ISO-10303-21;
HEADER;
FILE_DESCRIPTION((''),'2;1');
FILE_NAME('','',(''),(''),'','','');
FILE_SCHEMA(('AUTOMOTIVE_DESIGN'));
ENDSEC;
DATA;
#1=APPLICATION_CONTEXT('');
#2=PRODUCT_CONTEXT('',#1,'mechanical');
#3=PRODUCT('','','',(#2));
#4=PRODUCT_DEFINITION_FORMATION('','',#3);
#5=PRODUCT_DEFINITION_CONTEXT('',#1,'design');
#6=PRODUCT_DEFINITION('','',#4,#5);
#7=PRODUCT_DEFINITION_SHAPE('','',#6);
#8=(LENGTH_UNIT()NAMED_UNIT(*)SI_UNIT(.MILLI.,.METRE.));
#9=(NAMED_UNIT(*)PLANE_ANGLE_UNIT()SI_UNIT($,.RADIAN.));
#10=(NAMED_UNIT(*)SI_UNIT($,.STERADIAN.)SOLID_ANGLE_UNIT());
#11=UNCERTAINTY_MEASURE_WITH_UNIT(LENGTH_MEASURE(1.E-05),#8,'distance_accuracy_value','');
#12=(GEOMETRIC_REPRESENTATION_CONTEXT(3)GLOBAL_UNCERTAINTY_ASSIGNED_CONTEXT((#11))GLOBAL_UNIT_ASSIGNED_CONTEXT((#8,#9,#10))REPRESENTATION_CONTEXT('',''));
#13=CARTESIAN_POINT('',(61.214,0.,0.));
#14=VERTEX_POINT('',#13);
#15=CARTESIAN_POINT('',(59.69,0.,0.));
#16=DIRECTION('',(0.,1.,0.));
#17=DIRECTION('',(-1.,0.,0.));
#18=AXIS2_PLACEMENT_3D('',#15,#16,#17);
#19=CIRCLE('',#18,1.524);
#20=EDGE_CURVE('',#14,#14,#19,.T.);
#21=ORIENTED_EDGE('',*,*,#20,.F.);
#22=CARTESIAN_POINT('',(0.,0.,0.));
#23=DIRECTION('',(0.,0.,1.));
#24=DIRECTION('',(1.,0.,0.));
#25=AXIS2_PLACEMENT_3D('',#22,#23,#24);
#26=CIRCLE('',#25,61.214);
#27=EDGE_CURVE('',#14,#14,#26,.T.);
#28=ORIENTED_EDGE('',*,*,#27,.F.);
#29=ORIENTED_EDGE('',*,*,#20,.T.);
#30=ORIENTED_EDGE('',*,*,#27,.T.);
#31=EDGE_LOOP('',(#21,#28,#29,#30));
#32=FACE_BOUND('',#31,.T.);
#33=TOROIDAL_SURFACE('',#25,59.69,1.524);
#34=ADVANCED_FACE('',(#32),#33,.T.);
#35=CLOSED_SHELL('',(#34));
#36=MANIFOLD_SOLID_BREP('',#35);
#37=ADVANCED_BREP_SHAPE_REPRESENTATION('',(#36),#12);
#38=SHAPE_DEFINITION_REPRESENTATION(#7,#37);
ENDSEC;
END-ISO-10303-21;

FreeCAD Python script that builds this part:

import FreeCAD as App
import Part
import Sketcher
from FreeCAD import Vector
Q = App.Units.Quantity

doc = App.newDocument("Part")
body = doc.addObject("PartDesign::Body", "Body")

# Sketch on XZ plane
sketch1 = doc.addObject("Sketcher::SketchObject", "Sketch")
body.addObject(sketch1)
sketch1.AttachmentSupport = (doc.XZ_Plane, [""])
sketch1.MapMode = "FlatFace"
sketch1.addGeometry(Part.Circle(Vector(59.7, 0, 0), Vector(0, 0, 1), 1.5), False)
sketch1.addConstraint(Sketcher.Constraint("PointOnObject", 0, 3, -1))
sketch1.addConstraint(Sketcher.Constraint("Diameter", 0, Q("0.12 in")))
sketch1.addConstraint(Sketcher.Constraint("DistanceX", -1, 1, 0, 3, Q("2.35 in")))

# Sketch on XY plane
sketch2 = doc.addObject("Sketcher::SketchObject", "Sketch001")
body.addObject(sketch2)
sketch2.AttachmentSupport = (doc.XY_Plane, [""])
sketch2.MapMode = "FlatFace"
sketch2.addGeometry(Part.Circle(Vector(0, 0, 0), Vector(0, 0, 1), 60), False)
sketch2.addConstraint(Sketcher.Constraint("Coincident", 0, 3, -1, 1))
sketch2.addConstraint(Sketcher.Constraint("Diameter", 0, Q("4.7 in")))
doc.recompute()

additivepipe = doc.addObject("PartDesign::AdditivePipe", "AdditivePipe")
body.addObject(additivepipe)
additivepipe.Profile = sketch1
additivepipe.Spine = (sketch2, ["Edge1"])

doc.recompute()
